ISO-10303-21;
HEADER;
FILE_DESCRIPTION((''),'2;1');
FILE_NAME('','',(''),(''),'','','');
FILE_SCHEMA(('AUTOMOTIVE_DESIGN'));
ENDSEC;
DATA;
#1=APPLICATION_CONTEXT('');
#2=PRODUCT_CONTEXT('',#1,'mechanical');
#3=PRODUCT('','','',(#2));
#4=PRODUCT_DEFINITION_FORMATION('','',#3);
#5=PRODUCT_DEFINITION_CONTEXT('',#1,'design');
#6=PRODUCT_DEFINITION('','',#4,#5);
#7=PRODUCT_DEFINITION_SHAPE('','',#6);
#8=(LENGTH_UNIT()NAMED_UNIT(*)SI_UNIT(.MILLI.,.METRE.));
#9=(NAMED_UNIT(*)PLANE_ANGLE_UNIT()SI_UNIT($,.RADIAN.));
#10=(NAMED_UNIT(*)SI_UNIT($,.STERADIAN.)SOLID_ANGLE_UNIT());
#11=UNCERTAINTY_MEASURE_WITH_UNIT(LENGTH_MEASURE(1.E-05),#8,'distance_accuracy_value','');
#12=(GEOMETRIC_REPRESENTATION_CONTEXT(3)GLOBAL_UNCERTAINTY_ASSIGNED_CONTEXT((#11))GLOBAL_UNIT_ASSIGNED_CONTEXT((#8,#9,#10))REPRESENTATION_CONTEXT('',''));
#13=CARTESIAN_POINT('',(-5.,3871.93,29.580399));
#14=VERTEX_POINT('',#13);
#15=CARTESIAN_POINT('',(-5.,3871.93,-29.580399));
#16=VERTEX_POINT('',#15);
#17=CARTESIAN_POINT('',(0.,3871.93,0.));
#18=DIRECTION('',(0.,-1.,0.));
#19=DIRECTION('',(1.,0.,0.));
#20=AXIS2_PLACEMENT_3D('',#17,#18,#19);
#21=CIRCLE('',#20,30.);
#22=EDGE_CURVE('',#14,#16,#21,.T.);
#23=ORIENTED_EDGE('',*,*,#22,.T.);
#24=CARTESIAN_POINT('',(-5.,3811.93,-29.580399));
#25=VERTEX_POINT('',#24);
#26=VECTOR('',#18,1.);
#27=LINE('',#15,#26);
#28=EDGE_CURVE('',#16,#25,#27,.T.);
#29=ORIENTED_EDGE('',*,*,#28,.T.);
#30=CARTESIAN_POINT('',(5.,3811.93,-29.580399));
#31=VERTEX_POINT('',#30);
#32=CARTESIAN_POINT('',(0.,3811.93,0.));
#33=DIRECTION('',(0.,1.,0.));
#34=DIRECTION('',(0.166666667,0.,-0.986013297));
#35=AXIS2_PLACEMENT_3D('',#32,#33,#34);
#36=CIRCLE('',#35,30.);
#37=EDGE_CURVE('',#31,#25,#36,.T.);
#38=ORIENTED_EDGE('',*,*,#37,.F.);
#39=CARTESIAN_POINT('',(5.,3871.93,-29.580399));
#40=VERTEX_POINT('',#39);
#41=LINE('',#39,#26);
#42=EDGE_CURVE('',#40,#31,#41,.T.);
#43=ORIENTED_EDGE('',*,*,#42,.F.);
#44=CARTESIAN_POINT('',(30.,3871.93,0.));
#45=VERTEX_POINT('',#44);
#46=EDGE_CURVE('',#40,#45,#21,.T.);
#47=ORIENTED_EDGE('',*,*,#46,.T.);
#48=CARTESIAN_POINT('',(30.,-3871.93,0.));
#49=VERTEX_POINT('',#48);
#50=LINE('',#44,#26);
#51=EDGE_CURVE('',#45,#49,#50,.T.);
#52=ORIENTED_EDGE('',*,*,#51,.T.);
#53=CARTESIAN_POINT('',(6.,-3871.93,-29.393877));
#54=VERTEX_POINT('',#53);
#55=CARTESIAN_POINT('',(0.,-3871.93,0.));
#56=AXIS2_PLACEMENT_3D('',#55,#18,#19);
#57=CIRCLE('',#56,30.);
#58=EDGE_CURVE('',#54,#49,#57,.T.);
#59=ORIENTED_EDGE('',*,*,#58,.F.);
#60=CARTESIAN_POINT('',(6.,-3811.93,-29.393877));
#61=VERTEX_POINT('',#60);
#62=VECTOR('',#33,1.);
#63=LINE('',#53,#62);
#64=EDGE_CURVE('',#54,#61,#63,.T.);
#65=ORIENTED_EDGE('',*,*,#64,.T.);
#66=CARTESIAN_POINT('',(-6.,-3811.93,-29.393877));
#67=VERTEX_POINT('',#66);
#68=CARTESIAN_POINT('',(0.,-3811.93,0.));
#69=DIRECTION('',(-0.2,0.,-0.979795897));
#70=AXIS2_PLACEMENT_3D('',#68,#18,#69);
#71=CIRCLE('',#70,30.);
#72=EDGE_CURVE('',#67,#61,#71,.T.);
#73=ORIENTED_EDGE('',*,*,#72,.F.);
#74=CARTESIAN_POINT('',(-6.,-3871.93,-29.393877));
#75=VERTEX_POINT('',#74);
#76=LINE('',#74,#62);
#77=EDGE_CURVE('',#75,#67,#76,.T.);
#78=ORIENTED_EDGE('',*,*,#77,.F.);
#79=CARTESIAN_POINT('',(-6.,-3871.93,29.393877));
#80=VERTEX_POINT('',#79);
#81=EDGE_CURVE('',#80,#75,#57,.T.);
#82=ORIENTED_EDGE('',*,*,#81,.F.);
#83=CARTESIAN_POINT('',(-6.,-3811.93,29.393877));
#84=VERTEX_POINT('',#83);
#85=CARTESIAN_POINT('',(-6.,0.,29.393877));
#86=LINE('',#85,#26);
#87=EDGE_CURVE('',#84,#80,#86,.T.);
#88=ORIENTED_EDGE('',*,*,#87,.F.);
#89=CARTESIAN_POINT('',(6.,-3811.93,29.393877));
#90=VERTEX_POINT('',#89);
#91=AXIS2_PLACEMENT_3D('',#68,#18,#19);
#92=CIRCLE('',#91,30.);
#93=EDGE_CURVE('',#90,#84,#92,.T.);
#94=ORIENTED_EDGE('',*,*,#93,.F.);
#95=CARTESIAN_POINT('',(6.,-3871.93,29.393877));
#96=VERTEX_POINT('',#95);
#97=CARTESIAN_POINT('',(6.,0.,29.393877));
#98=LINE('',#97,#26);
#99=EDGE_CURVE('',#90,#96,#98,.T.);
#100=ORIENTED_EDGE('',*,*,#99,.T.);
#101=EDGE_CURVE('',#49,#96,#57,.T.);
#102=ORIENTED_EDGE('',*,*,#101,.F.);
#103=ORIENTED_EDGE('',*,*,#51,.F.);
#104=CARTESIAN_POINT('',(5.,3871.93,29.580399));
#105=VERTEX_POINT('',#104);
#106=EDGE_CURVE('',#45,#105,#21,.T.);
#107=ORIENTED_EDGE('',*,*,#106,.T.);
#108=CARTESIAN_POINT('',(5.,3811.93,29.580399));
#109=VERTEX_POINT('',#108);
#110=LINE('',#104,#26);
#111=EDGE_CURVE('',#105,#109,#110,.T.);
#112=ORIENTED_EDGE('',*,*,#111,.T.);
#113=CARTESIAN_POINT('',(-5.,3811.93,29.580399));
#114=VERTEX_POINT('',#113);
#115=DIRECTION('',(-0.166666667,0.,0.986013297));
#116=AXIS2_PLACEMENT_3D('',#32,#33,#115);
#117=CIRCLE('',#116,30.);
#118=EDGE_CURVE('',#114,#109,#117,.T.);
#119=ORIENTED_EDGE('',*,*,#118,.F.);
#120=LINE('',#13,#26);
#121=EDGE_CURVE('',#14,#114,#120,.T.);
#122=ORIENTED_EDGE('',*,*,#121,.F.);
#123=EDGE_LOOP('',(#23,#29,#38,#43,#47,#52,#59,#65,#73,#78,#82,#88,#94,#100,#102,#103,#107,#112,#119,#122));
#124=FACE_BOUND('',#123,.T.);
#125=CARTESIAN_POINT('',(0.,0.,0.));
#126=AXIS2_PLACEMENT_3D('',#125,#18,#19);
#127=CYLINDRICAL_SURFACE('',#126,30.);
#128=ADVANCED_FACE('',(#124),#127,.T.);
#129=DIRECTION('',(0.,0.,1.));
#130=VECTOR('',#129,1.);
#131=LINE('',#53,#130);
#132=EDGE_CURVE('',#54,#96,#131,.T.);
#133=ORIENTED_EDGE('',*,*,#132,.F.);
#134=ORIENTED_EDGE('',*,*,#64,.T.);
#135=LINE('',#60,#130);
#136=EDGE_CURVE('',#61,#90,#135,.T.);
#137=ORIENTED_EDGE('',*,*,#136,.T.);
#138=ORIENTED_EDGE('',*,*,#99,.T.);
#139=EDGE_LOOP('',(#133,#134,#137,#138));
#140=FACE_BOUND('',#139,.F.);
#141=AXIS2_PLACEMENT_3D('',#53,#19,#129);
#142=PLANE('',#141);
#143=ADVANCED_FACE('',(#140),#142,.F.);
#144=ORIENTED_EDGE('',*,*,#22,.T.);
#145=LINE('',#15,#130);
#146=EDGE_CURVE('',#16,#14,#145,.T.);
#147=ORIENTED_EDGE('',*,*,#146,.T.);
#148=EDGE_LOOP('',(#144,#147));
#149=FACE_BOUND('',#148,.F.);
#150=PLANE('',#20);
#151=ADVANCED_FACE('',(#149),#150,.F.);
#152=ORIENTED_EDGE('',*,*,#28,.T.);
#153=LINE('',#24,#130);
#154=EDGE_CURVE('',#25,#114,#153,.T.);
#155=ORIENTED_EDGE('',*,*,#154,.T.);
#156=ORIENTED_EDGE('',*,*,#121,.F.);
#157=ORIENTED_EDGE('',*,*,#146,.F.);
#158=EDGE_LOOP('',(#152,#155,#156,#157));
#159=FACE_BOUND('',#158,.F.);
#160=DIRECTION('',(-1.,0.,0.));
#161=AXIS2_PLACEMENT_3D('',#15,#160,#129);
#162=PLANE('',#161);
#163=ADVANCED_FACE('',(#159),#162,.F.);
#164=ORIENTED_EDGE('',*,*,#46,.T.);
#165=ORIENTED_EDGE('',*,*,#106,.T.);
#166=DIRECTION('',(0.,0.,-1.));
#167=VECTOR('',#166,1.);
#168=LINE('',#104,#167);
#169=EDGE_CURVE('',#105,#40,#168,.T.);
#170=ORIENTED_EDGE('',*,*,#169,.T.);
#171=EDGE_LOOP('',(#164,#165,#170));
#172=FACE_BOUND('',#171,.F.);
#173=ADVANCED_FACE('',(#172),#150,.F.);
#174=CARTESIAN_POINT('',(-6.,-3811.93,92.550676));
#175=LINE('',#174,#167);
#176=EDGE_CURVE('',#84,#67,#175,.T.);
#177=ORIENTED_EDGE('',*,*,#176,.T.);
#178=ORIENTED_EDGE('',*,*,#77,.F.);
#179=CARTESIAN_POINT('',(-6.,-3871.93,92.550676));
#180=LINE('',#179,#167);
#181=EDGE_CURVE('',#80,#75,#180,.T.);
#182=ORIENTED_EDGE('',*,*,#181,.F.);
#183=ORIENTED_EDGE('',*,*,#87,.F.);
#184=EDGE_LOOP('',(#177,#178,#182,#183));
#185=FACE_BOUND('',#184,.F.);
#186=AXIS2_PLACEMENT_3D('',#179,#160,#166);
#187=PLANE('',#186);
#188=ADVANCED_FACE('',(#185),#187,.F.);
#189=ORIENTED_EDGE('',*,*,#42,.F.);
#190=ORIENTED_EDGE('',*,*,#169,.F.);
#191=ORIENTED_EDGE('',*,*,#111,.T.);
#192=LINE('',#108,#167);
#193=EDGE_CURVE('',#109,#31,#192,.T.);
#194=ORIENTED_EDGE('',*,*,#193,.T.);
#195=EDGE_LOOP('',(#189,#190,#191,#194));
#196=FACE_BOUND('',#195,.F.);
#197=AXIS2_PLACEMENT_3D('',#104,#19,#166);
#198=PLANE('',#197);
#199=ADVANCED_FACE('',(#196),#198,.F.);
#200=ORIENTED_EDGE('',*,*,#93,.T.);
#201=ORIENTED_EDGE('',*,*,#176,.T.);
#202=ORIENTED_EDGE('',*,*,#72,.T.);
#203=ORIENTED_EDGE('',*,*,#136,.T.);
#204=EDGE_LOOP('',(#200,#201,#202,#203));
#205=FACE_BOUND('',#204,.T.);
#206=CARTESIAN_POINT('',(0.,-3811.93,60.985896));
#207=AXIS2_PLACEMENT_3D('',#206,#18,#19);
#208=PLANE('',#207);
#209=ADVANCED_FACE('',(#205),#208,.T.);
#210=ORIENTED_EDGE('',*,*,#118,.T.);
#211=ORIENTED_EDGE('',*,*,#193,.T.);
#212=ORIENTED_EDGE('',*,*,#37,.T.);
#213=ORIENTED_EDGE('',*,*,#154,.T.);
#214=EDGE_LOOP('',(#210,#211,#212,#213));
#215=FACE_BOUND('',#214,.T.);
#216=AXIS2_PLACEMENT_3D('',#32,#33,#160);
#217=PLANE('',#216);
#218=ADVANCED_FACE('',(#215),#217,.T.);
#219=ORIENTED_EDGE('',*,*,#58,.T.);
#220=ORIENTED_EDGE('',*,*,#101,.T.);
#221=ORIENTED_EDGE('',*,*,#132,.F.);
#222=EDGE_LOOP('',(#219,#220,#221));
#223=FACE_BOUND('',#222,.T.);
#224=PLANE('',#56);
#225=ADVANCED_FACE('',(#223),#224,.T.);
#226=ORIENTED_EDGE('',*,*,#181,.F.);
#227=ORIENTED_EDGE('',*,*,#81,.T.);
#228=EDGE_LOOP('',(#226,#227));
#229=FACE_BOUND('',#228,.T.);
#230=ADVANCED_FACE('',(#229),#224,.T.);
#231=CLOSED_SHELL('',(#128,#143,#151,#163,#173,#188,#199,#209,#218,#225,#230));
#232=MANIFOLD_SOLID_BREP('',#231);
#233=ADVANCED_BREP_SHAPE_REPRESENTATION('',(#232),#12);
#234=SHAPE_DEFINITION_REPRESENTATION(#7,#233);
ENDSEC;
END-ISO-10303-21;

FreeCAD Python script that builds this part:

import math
import FreeCAD as App
import Part
import Sketcher

doc = App.newDocument("Part")
params = doc.addObject("Spreadsheet::Sheet", "Params")
for row, (alias, value) in enumerate([
    ("sketch1_diameter", "60 mm"),
    ("pad1_length", "7743.86 mm"),
    ("sketch2_radius", "30 mm"),
    ("sketch2_width", "12 mm"),
    ("pocket1_length", "60 mm"),
    ("sketch3_radius", "30 mm"),
    ("pocket2_length", "60 mm"),
], start=1):
    params.set(f"A{row}", alias)
    params.set(f"B{row}", "=" + value)
    params.setAlias(f"B{row}", alias)

body = doc.addObject("PartDesign::Body", "Body")

sketch1 = body.newObject("Sketcher::SketchObject", "Sketch")
sketch1.AttachmentSupport = (doc.getObject("XZ_Plane"), [""])
sketch1.MapMode = "FlatFace"
sketch1.addGeometry(Part.Circle(App.Vector(0, 0, 0), App.Vector(0, 0, 1), 30), False)
sketch1.addConstraint([
    Sketcher.Constraint("Coincident", 0, 3, -1, 1),
    Sketcher.Constraint("Diameter", 0, 60.0),
])
sketch1.setExpression("Constraints[1]", "Params.sketch1_diameter")
pad1 = body.newObject("PartDesign::Pad", "Pad")
pad1.Profile = sketch1
pad1.setExpression("Length", "Params.pad1_length")
pad1.Midplane = True

sketch2 = body.newObject("Sketcher::SketchObject", "Sketch001")
sketch2.AttachmentSupport = (doc.getObject("XZ_Plane"), [""])
sketch2.MapMode = "FlatFace"
sketch2.AttachmentOffset = App.Placement(App.Vector(0, 0, 3871.93), App.Rotation())
sketch2.addGeometry([
    Part.LineSegment(App.Vector(6, 93, 0), App.Vector(-6, 93, 0)),
    Part.LineSegment(App.Vector(-6, 93, 0), App.Vector(-6, -29, 0)),
    Part.ArcOfCircle(Part.Circle(App.Vector(0, 0, 0), App.Vector(0, 0, 1), 30), math.radians(-102), math.radians(-78)),
    Part.LineSegment(App.Vector(6, -29, 0), App.Vector(6, 93, 0)),
], False)
sketch2.addConstraint([
    Sketcher.Constraint("Coincident", 0, 2, 1, 1),
    Sketcher.Constraint("Coincident", 1, 2, 2, 1),
    Sketcher.Constraint("Coincident", 2, 2, 3, 1),
    Sketcher.Constraint("Coincident", 3, 2, 0, 1),
    Sketcher.Constraint("Horizontal", 0),
    Sketcher.Constraint("Vertical", 1),
    Sketcher.Constraint("Vertical", 3),
    Sketcher.Constraint("Coincident", 2, 3, -1, 1),
    Sketcher.Constraint("Horizontal", 1, 2, 2, 2),
    Sketcher.Constraint("Radius", 2, 30.0),
    Sketcher.Constraint("DistanceX", 0, 2, 0, 1, 12.0),
    Sketcher.Constraint("DistanceY", 1, 2, 1, 1, 121.944553),
])
sketch2.setExpression("Constraints[9]", "Params.sketch2_radius")
sketch2.setExpression("Constraints[10]", "Params.sketch2_width")
pocket1 = body.newObject("PartDesign::Pocket", "Pocket")
pocket1.Profile = sketch2
pocket1.setExpression("Length", "Params.pocket1_length")

sketch3 = body.newObject("Sketcher::SketchObject", "Sketch002")
sketch3.AttachmentSupport = (doc.getObject("XZ_Plane"), [""])
sketch3.MapMode = "FlatFace"
sketch3.AttachmentOffset = App.Placement(App.Vector(0, 0, -3871.93), App.Rotation())
sketch3.addGeometry([
    Part.LineSegment(App.Vector(-5, -30, 0), App.Vector(-5, 30, 0)),
    Part.ArcOfCircle(Part.Circle(App.Vector(0, 0, 0), App.Vector(0, 0, 1), 30), math.radians(80.41), math.radians(99.59)),
    Part.LineSegment(App.Vector(5, 30, 0), App.Vector(5, -30, 0)),
    Part.ArcOfCircle(Part.Circle(App.Vector(0, 0, 0), App.Vector(0, 0, 1), 30), math.radians(-99.59), math.radians(-80.41)),
], False)
sketch3.addConstraint([
    Sketcher.Constraint("Coincident", 0, 2, 1, 2),
    Sketcher.Constraint("Coincident", 1, 1, 2, 1),
    Sketcher.Constraint("Coincident", 2, 2, 3, 2),
    Sketcher.Constraint("Coincident", 3, 1, 0, 1),
    Sketcher.Constraint("Vertical", 0),
    Sketcher.Constraint("Vertical", 2),
    Sketcher.Constraint("Coincident", 1, 3, -1, 1),
    Sketcher.Constraint("Coincident", 3, 3, -1, 1),
    Sketcher.Constraint("Equal", 1, 3),
    Sketcher.Constraint("Horizontal", 0, 2, 1, 1),
    Sketcher.Constraint("Radius", 1, 30.0),
    Sketcher.Constraint("DistanceX", 0, 2, -1, 1, 5.0),
])
sketch3.setExpression("Constraints[10]", "Params.sketch3_radius")
pocket2 = body.newObject("PartDesign::Pocket", "Pocket001")
pocket2.Profile = sketch3
pocket2.setExpression("Length", "Params.pocket2_length")
pocket2.Reversed = True

doc.recompute()
